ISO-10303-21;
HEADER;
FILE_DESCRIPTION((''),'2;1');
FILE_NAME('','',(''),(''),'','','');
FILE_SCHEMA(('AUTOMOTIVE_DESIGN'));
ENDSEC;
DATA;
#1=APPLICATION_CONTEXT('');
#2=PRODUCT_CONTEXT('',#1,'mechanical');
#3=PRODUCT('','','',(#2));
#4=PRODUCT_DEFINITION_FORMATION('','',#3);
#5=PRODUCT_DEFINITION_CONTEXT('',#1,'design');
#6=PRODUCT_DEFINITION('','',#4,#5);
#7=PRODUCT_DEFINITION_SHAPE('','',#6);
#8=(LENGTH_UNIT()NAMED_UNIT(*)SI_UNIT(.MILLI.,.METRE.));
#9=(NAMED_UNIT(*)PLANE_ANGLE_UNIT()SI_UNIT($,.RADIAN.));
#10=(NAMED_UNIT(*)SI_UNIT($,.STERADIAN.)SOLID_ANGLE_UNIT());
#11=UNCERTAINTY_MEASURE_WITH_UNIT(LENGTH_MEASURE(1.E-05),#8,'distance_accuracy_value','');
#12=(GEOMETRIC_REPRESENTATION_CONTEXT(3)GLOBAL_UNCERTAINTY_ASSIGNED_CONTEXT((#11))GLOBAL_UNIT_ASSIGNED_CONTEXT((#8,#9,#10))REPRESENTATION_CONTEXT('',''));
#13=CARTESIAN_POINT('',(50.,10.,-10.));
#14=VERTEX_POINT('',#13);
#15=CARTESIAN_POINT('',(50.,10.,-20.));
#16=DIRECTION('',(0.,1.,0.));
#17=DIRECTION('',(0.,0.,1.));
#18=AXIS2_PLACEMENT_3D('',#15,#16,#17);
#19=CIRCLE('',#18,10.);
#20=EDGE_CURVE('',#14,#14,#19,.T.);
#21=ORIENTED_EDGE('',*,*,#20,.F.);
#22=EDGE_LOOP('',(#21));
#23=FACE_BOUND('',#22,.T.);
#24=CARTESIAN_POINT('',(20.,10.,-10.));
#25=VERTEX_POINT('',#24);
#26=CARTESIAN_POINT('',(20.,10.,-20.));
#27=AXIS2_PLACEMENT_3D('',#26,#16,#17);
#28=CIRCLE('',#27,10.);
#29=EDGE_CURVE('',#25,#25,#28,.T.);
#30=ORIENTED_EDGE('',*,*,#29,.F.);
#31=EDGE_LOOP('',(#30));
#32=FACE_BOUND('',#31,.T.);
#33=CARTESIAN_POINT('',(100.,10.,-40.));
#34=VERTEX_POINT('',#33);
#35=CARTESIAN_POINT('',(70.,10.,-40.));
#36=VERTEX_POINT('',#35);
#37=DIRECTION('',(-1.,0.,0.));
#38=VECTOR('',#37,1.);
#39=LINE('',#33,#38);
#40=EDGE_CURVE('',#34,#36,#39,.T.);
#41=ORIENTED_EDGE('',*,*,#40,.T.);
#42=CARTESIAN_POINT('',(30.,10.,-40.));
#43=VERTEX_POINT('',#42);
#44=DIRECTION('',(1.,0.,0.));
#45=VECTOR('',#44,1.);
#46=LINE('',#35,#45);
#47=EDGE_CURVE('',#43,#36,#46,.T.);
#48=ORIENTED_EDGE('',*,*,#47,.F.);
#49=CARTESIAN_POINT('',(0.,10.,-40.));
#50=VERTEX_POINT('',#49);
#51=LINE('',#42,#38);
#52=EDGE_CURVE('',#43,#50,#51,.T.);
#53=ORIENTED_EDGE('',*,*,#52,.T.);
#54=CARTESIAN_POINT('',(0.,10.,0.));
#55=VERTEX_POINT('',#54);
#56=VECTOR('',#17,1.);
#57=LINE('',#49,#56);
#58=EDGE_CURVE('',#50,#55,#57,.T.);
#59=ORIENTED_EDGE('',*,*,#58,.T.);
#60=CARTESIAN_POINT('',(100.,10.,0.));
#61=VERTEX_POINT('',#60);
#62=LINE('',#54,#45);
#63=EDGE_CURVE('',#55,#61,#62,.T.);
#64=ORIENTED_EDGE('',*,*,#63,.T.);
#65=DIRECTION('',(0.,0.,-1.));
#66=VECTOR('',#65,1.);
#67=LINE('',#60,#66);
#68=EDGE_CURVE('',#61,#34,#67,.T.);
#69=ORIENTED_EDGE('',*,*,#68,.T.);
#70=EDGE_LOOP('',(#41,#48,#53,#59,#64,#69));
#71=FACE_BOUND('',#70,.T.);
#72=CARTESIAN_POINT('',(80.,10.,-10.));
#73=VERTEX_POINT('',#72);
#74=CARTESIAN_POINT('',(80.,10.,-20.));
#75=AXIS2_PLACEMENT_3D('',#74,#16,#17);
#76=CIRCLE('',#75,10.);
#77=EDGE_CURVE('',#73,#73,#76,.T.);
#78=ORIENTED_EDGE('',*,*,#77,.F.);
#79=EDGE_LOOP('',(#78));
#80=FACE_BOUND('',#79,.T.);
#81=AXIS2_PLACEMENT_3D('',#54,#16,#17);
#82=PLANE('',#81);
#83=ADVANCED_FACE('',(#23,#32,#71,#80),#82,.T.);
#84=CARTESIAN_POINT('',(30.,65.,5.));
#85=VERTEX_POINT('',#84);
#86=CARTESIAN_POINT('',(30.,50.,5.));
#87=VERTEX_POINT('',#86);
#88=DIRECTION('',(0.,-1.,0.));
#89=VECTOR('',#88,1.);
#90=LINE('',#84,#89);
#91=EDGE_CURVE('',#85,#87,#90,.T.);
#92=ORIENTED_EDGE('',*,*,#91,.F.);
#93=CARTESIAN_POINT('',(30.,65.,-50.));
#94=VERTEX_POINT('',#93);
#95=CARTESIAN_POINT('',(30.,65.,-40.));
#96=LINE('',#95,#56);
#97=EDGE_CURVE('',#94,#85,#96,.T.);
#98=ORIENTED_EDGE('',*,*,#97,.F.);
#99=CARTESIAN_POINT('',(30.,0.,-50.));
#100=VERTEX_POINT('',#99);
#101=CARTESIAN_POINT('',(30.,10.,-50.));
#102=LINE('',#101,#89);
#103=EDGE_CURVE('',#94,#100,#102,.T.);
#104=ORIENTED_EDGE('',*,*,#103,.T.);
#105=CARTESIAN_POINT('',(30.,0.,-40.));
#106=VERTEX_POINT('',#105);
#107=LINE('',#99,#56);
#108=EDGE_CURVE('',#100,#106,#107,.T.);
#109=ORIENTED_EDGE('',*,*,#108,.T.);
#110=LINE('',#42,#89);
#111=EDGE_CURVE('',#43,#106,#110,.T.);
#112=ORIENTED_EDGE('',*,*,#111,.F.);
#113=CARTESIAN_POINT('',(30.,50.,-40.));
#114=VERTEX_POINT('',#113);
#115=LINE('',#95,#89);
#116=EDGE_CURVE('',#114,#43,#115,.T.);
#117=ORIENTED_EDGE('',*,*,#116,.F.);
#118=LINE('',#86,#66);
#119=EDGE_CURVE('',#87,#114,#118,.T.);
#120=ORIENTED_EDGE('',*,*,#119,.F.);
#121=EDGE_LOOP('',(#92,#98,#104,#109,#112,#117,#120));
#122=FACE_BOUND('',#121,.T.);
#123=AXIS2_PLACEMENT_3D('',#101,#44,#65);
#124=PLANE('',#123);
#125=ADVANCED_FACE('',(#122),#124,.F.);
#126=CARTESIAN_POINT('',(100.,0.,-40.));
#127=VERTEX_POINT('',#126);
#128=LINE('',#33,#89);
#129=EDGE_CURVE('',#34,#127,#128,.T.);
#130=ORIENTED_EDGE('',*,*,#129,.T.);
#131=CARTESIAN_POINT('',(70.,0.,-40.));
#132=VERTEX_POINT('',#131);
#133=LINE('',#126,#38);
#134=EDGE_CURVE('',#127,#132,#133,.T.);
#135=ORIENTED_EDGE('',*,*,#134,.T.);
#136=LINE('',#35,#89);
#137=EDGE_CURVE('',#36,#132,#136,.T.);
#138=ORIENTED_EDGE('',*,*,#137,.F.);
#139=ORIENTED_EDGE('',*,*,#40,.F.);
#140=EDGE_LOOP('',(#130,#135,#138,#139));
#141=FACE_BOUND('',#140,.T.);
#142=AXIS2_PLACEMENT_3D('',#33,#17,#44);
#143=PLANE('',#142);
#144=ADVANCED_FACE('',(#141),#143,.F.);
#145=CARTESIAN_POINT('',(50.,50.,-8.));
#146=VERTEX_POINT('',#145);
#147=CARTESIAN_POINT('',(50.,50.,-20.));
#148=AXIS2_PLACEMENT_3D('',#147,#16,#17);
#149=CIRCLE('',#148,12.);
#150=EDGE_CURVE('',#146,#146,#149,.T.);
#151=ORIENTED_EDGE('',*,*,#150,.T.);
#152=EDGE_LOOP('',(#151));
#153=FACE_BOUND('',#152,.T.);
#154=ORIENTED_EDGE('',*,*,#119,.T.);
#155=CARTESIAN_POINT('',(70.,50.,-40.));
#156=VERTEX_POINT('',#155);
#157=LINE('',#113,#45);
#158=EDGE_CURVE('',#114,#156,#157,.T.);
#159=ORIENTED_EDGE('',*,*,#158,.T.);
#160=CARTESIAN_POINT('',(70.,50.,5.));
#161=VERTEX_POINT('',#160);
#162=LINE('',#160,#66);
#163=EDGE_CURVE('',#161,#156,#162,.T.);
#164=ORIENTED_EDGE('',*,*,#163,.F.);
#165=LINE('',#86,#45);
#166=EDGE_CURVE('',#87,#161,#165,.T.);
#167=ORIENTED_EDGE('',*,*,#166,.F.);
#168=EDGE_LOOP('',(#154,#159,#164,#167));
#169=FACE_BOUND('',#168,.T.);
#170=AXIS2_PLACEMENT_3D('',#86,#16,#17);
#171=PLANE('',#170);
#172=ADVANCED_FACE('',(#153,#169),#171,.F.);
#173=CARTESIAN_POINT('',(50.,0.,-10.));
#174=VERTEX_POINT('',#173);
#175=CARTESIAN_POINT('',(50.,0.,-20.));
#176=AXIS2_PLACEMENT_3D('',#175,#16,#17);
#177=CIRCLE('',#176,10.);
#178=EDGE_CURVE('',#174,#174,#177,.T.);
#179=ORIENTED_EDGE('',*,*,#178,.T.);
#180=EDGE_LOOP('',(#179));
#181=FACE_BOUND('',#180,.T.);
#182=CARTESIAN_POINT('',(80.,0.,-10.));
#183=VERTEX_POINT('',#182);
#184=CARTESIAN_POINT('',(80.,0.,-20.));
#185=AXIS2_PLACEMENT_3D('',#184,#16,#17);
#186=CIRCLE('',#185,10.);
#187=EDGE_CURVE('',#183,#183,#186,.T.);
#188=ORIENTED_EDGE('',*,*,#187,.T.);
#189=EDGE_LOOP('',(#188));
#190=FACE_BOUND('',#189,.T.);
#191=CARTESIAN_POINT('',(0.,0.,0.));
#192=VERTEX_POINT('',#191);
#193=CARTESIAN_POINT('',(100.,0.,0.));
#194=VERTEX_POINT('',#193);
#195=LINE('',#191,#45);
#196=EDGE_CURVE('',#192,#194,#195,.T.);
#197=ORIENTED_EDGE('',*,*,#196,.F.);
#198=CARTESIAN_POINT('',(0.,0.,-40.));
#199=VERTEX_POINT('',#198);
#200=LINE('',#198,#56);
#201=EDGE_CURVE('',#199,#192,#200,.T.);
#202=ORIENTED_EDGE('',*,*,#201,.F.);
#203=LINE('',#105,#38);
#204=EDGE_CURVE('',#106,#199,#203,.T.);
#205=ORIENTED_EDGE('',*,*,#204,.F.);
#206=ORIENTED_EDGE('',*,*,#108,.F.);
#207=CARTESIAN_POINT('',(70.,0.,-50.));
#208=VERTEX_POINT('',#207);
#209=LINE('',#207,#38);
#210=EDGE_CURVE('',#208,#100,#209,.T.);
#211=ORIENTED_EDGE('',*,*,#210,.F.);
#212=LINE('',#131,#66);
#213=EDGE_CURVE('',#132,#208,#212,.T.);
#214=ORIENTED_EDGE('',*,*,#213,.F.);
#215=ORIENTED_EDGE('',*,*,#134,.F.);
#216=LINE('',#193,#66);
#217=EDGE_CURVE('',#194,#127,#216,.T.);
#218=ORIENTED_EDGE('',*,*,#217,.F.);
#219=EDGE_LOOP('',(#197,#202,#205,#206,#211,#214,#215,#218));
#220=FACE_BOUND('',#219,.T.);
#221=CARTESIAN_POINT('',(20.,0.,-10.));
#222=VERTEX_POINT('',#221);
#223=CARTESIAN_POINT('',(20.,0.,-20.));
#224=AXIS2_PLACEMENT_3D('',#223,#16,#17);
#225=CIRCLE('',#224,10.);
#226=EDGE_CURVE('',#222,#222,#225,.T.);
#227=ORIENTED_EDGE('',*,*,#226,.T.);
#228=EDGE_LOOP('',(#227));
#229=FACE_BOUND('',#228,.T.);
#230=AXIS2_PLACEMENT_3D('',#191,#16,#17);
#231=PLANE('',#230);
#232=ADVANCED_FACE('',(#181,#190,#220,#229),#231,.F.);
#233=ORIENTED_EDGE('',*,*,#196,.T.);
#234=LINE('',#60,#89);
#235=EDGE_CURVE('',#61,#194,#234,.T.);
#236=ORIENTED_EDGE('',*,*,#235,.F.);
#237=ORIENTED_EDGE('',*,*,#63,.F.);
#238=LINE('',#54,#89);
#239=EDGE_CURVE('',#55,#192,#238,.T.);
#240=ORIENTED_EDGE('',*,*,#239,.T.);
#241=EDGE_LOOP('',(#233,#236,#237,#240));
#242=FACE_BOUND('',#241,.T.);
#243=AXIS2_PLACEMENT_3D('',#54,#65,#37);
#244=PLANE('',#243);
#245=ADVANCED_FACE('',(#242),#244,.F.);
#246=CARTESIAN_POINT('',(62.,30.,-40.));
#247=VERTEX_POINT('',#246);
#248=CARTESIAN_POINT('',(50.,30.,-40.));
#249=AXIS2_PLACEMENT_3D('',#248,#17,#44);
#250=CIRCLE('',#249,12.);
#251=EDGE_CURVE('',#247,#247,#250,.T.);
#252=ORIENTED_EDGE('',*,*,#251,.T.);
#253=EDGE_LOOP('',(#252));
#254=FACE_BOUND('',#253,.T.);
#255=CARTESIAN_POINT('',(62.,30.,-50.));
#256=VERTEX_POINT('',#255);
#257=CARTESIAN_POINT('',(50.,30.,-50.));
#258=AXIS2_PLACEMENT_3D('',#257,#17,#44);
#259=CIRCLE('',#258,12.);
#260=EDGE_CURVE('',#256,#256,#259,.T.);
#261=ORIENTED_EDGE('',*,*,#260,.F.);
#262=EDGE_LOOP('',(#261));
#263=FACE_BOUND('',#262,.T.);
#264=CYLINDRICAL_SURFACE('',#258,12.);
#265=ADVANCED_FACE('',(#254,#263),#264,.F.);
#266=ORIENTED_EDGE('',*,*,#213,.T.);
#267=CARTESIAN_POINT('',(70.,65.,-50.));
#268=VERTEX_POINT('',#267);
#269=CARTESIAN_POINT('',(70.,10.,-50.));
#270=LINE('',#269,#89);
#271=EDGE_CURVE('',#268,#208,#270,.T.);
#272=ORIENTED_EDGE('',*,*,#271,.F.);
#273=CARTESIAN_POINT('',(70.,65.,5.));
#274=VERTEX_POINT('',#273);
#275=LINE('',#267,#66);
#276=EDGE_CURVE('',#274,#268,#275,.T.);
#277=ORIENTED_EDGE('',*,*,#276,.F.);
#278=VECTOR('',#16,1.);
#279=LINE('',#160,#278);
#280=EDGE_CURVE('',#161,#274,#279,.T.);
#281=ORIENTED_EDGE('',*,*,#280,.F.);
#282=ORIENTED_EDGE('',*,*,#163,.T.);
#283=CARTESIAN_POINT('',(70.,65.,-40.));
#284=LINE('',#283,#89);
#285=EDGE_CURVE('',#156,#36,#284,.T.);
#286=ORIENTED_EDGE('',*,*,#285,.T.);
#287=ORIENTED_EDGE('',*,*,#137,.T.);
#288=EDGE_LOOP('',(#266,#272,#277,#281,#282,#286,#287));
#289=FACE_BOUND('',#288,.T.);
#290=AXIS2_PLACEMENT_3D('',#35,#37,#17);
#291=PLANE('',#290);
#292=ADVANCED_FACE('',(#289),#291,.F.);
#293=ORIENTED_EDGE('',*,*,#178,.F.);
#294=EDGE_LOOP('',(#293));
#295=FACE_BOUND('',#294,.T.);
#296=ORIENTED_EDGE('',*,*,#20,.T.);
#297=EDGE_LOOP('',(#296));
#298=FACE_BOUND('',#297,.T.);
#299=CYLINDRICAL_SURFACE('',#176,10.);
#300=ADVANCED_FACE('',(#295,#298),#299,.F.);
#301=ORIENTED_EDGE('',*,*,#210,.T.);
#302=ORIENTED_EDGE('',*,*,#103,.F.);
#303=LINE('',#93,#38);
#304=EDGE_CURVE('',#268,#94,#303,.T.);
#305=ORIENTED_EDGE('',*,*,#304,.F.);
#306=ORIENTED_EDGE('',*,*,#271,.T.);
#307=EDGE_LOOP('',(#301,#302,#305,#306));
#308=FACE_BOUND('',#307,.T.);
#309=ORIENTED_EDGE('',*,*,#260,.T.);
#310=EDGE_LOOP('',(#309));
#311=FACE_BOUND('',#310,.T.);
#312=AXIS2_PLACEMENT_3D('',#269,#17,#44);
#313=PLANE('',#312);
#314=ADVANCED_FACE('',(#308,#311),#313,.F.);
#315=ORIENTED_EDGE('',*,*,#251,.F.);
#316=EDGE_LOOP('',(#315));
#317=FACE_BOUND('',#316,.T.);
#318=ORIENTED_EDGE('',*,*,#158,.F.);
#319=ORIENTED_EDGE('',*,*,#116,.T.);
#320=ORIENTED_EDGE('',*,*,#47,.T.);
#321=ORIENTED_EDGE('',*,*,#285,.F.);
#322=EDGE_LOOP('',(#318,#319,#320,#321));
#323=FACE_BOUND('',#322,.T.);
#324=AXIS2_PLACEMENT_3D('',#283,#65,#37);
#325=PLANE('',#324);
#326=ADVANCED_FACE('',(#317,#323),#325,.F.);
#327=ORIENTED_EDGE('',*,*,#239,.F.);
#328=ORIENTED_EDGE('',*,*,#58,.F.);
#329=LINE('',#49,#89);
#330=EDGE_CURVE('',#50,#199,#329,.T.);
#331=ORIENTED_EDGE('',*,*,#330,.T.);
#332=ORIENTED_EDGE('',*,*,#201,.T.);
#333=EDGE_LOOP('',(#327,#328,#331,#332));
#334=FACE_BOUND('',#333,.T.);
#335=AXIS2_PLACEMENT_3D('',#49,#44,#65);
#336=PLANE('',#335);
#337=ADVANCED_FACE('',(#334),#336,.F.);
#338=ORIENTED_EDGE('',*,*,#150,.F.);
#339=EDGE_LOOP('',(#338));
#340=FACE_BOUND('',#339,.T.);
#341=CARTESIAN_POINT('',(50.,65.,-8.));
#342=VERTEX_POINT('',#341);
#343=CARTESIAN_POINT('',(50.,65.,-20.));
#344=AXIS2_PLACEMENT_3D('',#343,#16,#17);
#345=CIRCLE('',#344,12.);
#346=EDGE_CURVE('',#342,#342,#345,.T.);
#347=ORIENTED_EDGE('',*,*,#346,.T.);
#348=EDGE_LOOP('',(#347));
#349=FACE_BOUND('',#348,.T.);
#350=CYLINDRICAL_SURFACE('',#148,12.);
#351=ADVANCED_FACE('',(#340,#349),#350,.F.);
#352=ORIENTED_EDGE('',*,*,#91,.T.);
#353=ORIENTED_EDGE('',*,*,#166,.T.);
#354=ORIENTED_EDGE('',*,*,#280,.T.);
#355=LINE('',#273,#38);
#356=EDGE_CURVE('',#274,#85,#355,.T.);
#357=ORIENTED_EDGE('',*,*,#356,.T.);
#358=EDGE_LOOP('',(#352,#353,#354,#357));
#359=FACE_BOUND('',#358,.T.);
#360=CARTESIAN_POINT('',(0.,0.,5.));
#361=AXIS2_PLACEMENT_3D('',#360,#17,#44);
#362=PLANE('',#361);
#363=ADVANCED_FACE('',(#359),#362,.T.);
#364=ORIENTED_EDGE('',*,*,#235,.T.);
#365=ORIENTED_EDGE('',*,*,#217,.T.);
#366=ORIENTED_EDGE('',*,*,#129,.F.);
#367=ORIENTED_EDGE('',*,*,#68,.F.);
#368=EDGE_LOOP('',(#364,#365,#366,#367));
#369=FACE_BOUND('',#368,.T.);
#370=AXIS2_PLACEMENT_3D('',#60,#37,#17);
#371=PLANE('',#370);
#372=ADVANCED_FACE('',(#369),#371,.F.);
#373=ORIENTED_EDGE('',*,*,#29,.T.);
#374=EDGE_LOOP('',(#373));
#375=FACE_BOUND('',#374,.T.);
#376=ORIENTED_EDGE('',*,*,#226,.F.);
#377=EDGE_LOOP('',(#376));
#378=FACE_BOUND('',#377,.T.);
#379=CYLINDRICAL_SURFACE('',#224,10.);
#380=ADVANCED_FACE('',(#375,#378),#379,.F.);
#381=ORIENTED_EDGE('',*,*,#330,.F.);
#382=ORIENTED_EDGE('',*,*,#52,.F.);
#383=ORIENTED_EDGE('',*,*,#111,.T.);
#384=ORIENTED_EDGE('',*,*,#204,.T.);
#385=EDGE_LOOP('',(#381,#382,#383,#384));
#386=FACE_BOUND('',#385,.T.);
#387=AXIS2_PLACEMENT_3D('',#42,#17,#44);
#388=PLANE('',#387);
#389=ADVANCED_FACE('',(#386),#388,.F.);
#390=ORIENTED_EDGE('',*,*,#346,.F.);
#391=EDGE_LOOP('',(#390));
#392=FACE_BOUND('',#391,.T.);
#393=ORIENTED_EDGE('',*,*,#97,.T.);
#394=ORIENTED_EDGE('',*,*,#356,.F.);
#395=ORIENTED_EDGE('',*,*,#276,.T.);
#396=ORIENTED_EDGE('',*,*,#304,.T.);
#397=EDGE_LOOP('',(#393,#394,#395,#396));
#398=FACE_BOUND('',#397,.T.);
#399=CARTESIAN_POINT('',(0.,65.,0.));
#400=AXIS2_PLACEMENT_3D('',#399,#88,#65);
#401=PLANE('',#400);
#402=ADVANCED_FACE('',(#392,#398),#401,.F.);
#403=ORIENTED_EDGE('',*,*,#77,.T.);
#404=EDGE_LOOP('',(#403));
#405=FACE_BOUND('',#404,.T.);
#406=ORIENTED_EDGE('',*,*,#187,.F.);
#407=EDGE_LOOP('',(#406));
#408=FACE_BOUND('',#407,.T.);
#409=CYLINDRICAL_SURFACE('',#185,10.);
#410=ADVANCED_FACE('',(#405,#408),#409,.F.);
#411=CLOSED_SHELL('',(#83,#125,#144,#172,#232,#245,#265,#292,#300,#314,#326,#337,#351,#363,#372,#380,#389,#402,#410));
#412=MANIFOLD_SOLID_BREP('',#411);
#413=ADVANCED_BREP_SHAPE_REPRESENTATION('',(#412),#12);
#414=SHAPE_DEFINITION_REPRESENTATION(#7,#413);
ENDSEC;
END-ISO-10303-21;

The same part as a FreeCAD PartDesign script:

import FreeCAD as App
import Part
import Sketcher
Q = App.Units.Quantity


def add_polygon(sketch, points):
    """Adds a closed chain of lines whose ends are joined by coincident constraints."""
    first, n = sketch.GeometryCount, len(points)
    for a, b in zip(points, points[1:] + points[:1]):
        sketch.addGeometry(Part.LineSegment(App.Vector(*a, 0), App.Vector(*b, 0)), False)
    for i in range(n):
        sketch.addConstraint(Sketcher.Constraint("Coincident", first + i, 2, first + (i + 1) % n, 1))

doc = App.newDocument("Part")
body = doc.addObject("PartDesign::Body", "Body")

sketch1 = body.newObject("Sketcher::SketchObject", "Sketch")
sketch1.AttachmentSupport = (doc.getObject("XZ_Plane"), [""])
sketch1.MapMode = "FlatFace"
add_polygon(sketch1, [(0, 0), (100, 0), (100, -40), (70, -40), (70, -50), (30, -50), (30, -40), (0, -40)])
sketch1.addConstraint([
    Sketcher.Constraint("Horizontal", 0),
    Sketcher.Constraint("Vertical", 1),
    Sketcher.Constraint("Horizontal", 2),
    Sketcher.Constraint("Vertical", 3),
    Sketcher.Constraint("Horizontal", 4),
    Sketcher.Constraint("Vertical", 5),
    Sketcher.Constraint("Horizontal", 6),
    Sketcher.Constraint("Vertical", 7),
    Sketcher.Constraint("Coincident", 7, 2, -1, 1),
    Sketcher.Constraint("Horizontal", 2, 2, 5, 2),
    Sketcher.Constraint("Equal", 2, 6),
    Sketcher.Constraint("Equal", 4, 1),
    Sketcher.Constraint("DistanceX", 0, 1, 0, 2, Q("100 mm")),
    Sketcher.Constraint("DistanceX", 2, 2, 2, 1, Q("30 mm")),
    Sketcher.Constraint("DistanceY", 3, 2, 3, 1, Q("10 mm")),
])
pad1 = body.newObject("PartDesign::Pad", "Pad")
pad1.Profile = sketch1
pad1.Length = 10
pad1.Reversed = True

sketch2 = body.newObject("Sketcher::SketchObject", "Sketch001")
sketch2.AttachmentSupport = (doc.getObject("XZ_Plane"), [""])
sketch2.MapMode = "FlatFace"
sketch2.AttachmentOffset = App.Placement(App.Vector(0, 0, -10), App.Rotation())
sketch2.addGeometry([
    Part.Circle(App.Vector(80, -20, 0), App.Vector(0, 0, 1), 10),
    Part.Circle(App.Vector(50, -20, 0), App.Vector(0, 0, 1), 10),
    Part.Circle(App.Vector(20, -20, 0), App.Vector(0, 0, 1), 10),
], False)
sketch2.addConstraint([
    Sketcher.Constraint("Equal", 0, 1),
    Sketcher.Constraint("Equal", 1, 2),
    Sketcher.Constraint("Horizontal", 0, 3, 1, 3),
    Sketcher.Constraint("Horizontal", 1, 3, 2, 3),
    Sketcher.Constraint("Diameter", 0, Q("20 mm")),
    Sketcher.Constraint("DistanceX", -1, 1, 0, 3, Q("80 mm")),
    Sketcher.Constraint("DistanceY", 0, 3, -1, 1, Q("20 mm")),
    Sketcher.Constraint("DistanceX", -1, 1, 1, 3, Q("50 mm")),
    Sketcher.Constraint("DistanceX", -1, 1, 2, 3, Q("20 mm")),
])
pocket1 = body.newObject("PartDesign::Pocket", "Pocket")
pocket1.Profile = sketch2
pocket1.Length = 10
pocket1.Reversed = True

sketch3 = body.newObject("Sketcher::SketchObject", "Sketch002")
sketch3.AttachmentSupport = (doc.getObject("XZ_Plane"), [""])
sketch3.MapMode = "FlatFace"
sketch3.AttachmentOffset = App.Placement(App.Vector(0, 0, -10), App.Rotation())
add_polygon(sketch3, [(30, -50), (30, -40), (70, -40), (70, -50)])
sketch3.addConstraint([
    Sketcher.Constraint("Vertical", 0),
    Sketcher.Constraint("Horizontal", 1),
    Sketcher.Constraint("Vertical", 2),
    Sketcher.Constraint("Horizontal", 3),
    Sketcher.Constraint("DistanceX", 1, 1, 1, 2, Q("40 mm")),
    Sketcher.Constraint("DistanceY", 0, 1, 0, 2, Q("10 mm")),
    Sketcher.Constraint("DistanceX", -1, 1, 0, 2, Q("30 mm")),
    Sketcher.Constraint("DistanceY", 0, 2, -1, 1, Q("40 mm")),
])
pad2 = body.newObject("PartDesign::Pad", "Pad001")
pad2.Profile = sketch3
pad2.Length = 55
pad2.Reversed = True

sketch4 = body.newObject("Sketcher::SketchObject", "Sketch003")
sketch4.AttachmentSupport = (doc.getObject("XY_Plane"), [""])
sketch4.MapMode = "FlatFace"
sketch4.AttachmentOffset = App.Placement(App.Vector(0, 0, -40), App.Rotation())
sketch4.addGeometry(Part.Circle(App.Vector(50, 30, 0), App.Vector(0, 0, 1), 12), False)
sketch4.addConstraint([
    Sketcher.Constraint("Diameter", 0, Q("24 mm")),
    Sketcher.Constraint("DistanceX", -1, 1, 0, 3, Q("50 mm")),
    Sketcher.Constraint("DistanceY", -1, 1, 0, 3, Q("30 mm")),
])
pocket2 = body.newObject("PartDesign::Pocket", "Pocket001")
pocket2.Profile = sketch4
pocket2.Length = 10

sketch5 = body.newObject("Sketcher::SketchObject", "Sketch004")
sketch5.AttachmentSupport = (doc.getObject("XY_Plane"), [""])
sketch5.MapMode = "FlatFace"
sketch5.AttachmentOffset = App.Placement(App.Vector(0, 0, -40), App.Rotation())
add_polygon(sketch5, [(30, 65), (30, 50), (70, 50), (70, 65)])
sketch5.addConstraint([
    Sketcher.Constraint("Vertical", 0),
    Sketcher.Constraint("Horizontal", 1),
    Sketcher.Constraint("Vertical", 2),
    Sketcher.Constraint("Horizontal", 3),
    Sketcher.Constraint("DistanceX", 1, 1, 1, 2, Q("40 mm")),
    Sketcher.Constraint("DistanceY", 0, 2, 0, 1, Q("15 mm")),
    Sketcher.Constraint("DistanceX", -1, 1, 0, 2, Q("30 mm")),
    Sketcher.Constraint("DistanceY", -1, 1, 0, 2, Q("50 mm")),
])
pad3 = body.newObject("PartDesign::Pad", "Pad002")
pad3.Profile = sketch5
pad3.Length = 45

sketch6 = body.newObject("Sketcher::SketchObject", "Sketch005")
sketch6.AttachmentSupport = (doc.getObject("XZ_Plane"), [""])
sketch6.MapMode = "FlatFace"
sketch6.AttachmentOffset = App.Placement(App.Vector(0, 0, -65), App.Rotation())
sketch6.addGeometry(Part.Circle(App.Vector(50, -20, 0), App.Vector(0, 0, 1), 12), False)
sketch6.addConstraint([
    Sketcher.Constraint("Diameter", 0, Q("24 mm")),
    Sketcher.Constraint("DistanceX", -1, 1, 0, 3, Q("50 mm")),
    Sketcher.Constraint("DistanceY", 0, 3, -1, 1, Q("20 mm")),
])
pocket3 = body.newObject("PartDesign::Pocket", "Pocket002")
pocket3.Profile = sketch6
pocket3.Length = 15
pocket3.Reversed = True

doc.recompute()
